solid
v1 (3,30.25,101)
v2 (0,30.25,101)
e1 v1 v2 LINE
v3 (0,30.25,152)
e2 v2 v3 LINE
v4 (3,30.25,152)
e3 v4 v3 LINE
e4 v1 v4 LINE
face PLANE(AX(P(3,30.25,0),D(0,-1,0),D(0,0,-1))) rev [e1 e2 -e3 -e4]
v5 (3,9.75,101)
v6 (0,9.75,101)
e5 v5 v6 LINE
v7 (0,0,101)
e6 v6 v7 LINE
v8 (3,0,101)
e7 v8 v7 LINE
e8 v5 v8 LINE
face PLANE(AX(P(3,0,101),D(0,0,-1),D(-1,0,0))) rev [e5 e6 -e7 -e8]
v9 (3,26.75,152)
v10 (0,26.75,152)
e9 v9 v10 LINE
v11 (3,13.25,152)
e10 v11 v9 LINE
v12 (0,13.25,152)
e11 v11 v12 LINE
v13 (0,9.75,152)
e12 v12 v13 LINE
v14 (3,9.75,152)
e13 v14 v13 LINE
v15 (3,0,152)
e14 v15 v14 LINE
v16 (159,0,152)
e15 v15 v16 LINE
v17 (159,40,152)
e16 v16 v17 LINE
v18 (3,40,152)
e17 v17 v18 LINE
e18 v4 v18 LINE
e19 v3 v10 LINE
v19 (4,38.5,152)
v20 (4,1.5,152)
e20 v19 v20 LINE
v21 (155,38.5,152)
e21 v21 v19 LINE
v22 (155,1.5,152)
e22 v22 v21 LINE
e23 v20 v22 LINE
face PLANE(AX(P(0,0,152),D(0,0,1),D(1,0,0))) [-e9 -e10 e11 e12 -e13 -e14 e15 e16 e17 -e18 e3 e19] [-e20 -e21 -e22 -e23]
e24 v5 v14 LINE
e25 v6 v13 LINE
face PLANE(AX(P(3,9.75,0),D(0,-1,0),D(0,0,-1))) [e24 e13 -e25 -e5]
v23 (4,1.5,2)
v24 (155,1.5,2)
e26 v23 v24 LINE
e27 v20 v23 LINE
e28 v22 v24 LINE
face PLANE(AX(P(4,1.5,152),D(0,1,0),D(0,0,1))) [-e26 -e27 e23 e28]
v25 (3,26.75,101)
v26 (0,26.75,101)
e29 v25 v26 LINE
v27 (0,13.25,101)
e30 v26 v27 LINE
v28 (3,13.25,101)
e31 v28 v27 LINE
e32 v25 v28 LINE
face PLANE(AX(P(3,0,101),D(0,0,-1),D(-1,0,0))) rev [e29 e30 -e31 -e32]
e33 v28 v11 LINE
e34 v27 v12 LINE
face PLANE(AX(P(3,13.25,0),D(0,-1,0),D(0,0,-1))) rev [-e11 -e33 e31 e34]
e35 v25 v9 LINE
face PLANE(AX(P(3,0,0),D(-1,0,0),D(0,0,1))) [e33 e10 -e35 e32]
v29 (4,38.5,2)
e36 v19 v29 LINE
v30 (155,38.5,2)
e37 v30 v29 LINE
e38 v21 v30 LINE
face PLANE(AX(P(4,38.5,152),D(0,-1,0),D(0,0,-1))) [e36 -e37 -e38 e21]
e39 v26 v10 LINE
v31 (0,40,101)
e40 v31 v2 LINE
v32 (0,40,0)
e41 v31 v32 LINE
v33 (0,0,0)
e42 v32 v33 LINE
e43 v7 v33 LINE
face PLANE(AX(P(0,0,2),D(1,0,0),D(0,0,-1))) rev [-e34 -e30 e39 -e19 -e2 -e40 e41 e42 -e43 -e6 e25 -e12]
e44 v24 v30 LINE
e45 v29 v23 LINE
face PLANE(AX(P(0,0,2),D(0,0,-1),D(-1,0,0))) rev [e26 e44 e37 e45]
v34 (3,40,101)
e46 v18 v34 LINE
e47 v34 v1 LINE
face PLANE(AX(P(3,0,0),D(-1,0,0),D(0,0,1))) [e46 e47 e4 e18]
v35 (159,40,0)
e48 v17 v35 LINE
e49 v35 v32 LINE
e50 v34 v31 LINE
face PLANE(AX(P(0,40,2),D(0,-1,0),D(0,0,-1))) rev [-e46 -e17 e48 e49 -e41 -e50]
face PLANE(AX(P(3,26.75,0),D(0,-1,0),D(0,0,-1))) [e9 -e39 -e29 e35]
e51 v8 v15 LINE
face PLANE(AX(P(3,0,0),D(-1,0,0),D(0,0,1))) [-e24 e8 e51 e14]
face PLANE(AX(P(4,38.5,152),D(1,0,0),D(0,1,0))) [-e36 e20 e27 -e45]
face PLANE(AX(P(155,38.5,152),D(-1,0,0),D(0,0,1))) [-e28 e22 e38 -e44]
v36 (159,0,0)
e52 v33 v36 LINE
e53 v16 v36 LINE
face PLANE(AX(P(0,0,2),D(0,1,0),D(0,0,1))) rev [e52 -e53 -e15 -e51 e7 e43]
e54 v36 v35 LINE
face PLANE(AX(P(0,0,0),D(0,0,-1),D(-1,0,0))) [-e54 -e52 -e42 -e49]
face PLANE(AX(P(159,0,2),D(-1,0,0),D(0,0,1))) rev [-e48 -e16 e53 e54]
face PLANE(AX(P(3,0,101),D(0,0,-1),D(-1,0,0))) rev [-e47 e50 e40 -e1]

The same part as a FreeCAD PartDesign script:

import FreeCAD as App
import Part
import Sketcher
Q = App.Units.Quantity

doc = App.newDocument("Part")
params = doc.addObject("Spreadsheet::Sheet", "Params")
for row, (alias, value) in enumerate([
    ("sketch1_width", "159 mm"),
    ("sketch1_height", "40 mm"),
    ("pad1_length", "2 mm"),
    ("sketch2_width", "159 mm"),
    ("sketch2_width2", "151 mm"),
    ("sketch2_height", "40 mm"),
    ("sketch2_height2", "37 mm"),
    ("pad2_length", "150 mm"),
    ("sketch3_height", "51 mm"),
    ("sketch3_width", "13.5 mm"),
    ("pocket1_length", "3 mm"),
], start=1):
    params.set(f"A{row}", alias)
    params.set(f"B{row}", "=" + value)
    params.setAlias(f"B{row}", alias)

body = doc.addObject("PartDesign::Body", "Body")

# Sketch on XY plane
sketch1 = body.newObject("Sketcher::SketchObject", "Sketch")
sketch1.AttachmentSupport = (doc.getObject("XY_Plane"), [""])
sketch1.MapMode = "FlatFace"
sketch1.addGeometry(Part.LineSegment(App.Vector(0, 40, 0), App.Vector(0, 0, 0)), False)
sketch1.addGeometry(Part.LineSegment(App.Vector(0, 0, 0), App.Vector(159, 0, 0)), False)
sketch1.addGeometry(Part.LineSegment(App.Vector(159, 0, 0), App.Vector(159, 40, 0)), False)
sketch1.addGeometry(Part.LineSegment(App.Vector(159, 40, 0), App.Vector(0, 40, 0)), False)
sketch1.addConstraint(Sketcher.Constraint("Coincident", 0, 2, 1, 1))
sketch1.addConstraint(Sketcher.Constraint("Coincident", 1, 2, 2, 1))
sketch1.addConstraint(Sketcher.Constraint("Coincident", 2, 2, 3, 1))
sketch1.addConstraint(Sketcher.Constraint("Coincident", 3, 2, 0, 1))
sketch1.addConstraint(Sketcher.Constraint("Vertical", 0))
sketch1.addConstraint(Sketcher.Constraint("Horizontal", 1))
sketch1.addConstraint(Sketcher.Constraint("Vertical", 2))
sketch1.addConstraint(Sketcher.Constraint("Horizontal", 3))
sketch1.addConstraint(Sketcher.Constraint("Coincident", 0, 2, -1, 1))
sketch1.addConstraint(Sketcher.Constraint("DistanceX", 1, 1, 1, 2, Q("159 mm")))
sketch1.addConstraint(Sketcher.Constraint("DistanceY", 0, 2, 0, 1, Q("40 mm")))
sketch1.setExpression("Constraints[9]", "Params.sketch1_width")
sketch1.setExpression("Constraints[10]", "Params.sketch1_height")
pad1 = body.newObject("PartDesign::Pad", "Pad")
pad1.Profile = sketch1
pad1.setExpression("Length", "Params.pad1_length")

# Sketch on XY plane
sketch2 = body.newObject("Sketcher::SketchObject", "Sketch001")
sketch2.AttachmentSupport = (doc.getObject("XY_Plane"), [""])
sketch2.MapMode = "FlatFace"
sketch2.AttachmentOffset = App.Placement(App.Vector(0, 0, 2), App.Rotation())
sketch2.addGeometry(Part.LineSegment(App.Vector(0, 40, 0), App.Vector(0, 0, 0)), False)
sketch2.addGeometry(Part.LineSegment(App.Vector(0, 0, 0), App.Vector(159, 0, 0)), False)
sketch2.addGeometry(Part.LineSegment(App.Vector(159, 0, 0), App.Vector(159, 40, 0)), False)
sketch2.addGeometry(Part.LineSegment(App.Vector(159, 40, 0), App.Vector(0, 40, 0)), False)
sketch2.addGeometry(Part.LineSegment(App.Vector(155, 2, 0), App.Vector(4, 2, 0)), False)
sketch2.addGeometry(Part.LineSegment(App.Vector(4, 2, 0), App.Vector(4, 38, 0)), False)
sketch2.addGeometry(Part.LineSegment(App.Vector(4, 38, 0), App.Vector(155, 38, 0)), False)
sketch2.addGeometry(Part.LineSegment(App.Vector(155, 38, 0), App.Vector(155, 2, 0)), False)
sketch2.addConstraint(Sketcher.Constraint("Coincident", 0, 2, 1, 1))
sketch2.addConstraint(Sketcher.Constraint("Coincident", 1, 2, 2, 1))
sketch2.addConstraint(Sketcher.Constraint("Coincident", 2, 2, 3, 1))
sketch2.addConstraint(Sketcher.Constraint("Coincident", 3, 2, 0, 1))
sketch2.addConstraint(Sketcher.Constraint("Coincident", 4, 2, 5, 1))
sketch2.addConstraint(Sketcher.Constraint("Coincident", 5, 2, 6, 1))
sketch2.addConstraint(Sketcher.Constraint("Coincident", 6, 2, 7, 1))
sketch2.addConstraint(Sketcher.Constraint("Coincident", 7, 2, 4, 1))
sketch2.addConstraint(Sketcher.Constraint("Vertical", 0))
sketch2.addConstraint(Sketcher.Constraint("Horizontal", 1))
sketch2.addConstraint(Sketcher.Constraint("Vertical", 2))
sketch2.addConstraint(Sketcher.Constraint("Horizontal", 3))
sketch2.addConstraint(Sketcher.Constraint("Horizontal", 4))
sketch2.addConstraint(Sketcher.Constraint("Vertical", 5))
sketch2.addConstraint(Sketcher.Constraint("Horizontal", 6))
sketch2.addConstraint(Sketcher.Constraint("Vertical", 7))
sketch2.addConstraint(Sketcher.Constraint("Coincident", 0, 2, -1, 1))
sketch2.addConstraint(Sketcher.Constraint("DistanceX", 1, 1, 1, 2, Q("159 mm")))
sketch2.addConstraint(Sketcher.Constraint("DistanceX", 4, 2, 4, 1, Q("151 mm")))
sketch2.addConstraint(Sketcher.Constraint("DistanceY", 0, 2, 0, 1, Q("40 mm")))
sketch2.addConstraint(Sketcher.Constraint("DistanceY", 5, 1, 5, 2, Q("37 mm")))
sketch2.addConstraint(Sketcher.Constraint("DistanceX", -1, 1, 4, 2, Q("4 mm")))
sketch2.addConstraint(Sketcher.Constraint("DistanceY", -1, 1, 4, 2, Q("1.5 mm")))
sketch2.setExpression("Constraints[17]", "Params.sketch2_width")
sketch2.setExpression("Constraints[18]", "Params.sketch2_width2")
sketch2.setExpression("Constraints[19]", "Params.sketch2_height")
sketch2.setExpression("Constraints[20]", "Params.sketch2_height2")
pad2 = body.newObject("PartDesign::Pad", "Pad001")
pad2.Profile = sketch2
pad2.setExpression("Length", "Params.pad2_length")

# Sketch on YZ plane
sketch3 = body.newObject("Sketcher::SketchObject", "Sketch002")
sketch3.AttachmentSupport = (doc.getObject("YZ_Plane"), [""])
sketch3.MapMode = "FlatFace"
sketch3.addGeometry(Part.LineSegment(App.Vector(40, 101, 0), App.Vector(30, 101, 0)), False)
sketch3.addGeometry(Part.LineSegment(App.Vector(30, 101, 0), App.Vector(30, 152, 0)), False)
sketch3.addGeometry(Part.LineSegment(App.Vector(30, 152, 0), App.Vector(40, 152, 0)), False)
sketch3.addGeometry(Part.LineSegment(App.Vector(40, 152, 0), App.Vector(40, 101, 0)), False)
sketch3.addGeometry(Part.LineSegment(App.Vector(27, 101, 0), App.Vector(13, 101, 0)), False)
sketch3.addGeometry(Part.LineSegment(App.Vector(13, 101, 0), App.Vector(13, 152, 0)), False)
sketch3.addGeometry(Part.LineSegment(App.Vector(13, 152, 0), App.Vector(27, 152, 0)), False)
sketch3.addGeometry(Part.LineSegment(App.Vector(27, 152, 0), App.Vector(27, 101, 0)), False)
sketch3.addGeometry(Part.LineSegment(App.Vector(10, 101, 0), App.Vector(0, 101, 0)), False)
sketch3.addGeometry(Part.LineSegment(App.Vector(0, 101, 0), App.Vector(0, 152, 0)), False)
sketch3.addGeometry(Part.LineSegment(App.Vector(0, 152, 0), App.Vector(10, 152, 0)), False)
sketch3.addGeometry(Part.LineSegment(App.Vector(10, 152, 0), App.Vector(10, 101, 0)), False)
sketch3.addConstraint(Sketcher.Constraint("Coincident", 0, 2, 1, 1))
sketch3.addConstraint(Sketcher.Constraint("Coincident", 1, 2, 2, 1))
sketch3.addConstraint(Sketcher.Constraint("Coincident", 2, 2, 3, 1))
sketch3.addConstraint(Sketcher.Constraint("Coincident", 3, 2, 0, 1))
sketch3.addConstraint(Sketcher.Constraint("Coincident", 4, 2, 5, 1))
sketch3.addConstraint(Sketcher.Constraint("Coincident", 5, 2, 6, 1))
sketch3.addConstraint(Sketcher.Constraint("Coincident", 6, 2, 7, 1))
sketch3.addConstraint(Sketcher.Constraint("Coincident", 7, 2, 4, 1))
sketch3.addConstraint(Sketcher.Constraint("Coincident", 8, 2, 9, 1))
sketch3.addConstraint(Sketcher.Constraint("Coincident", 9, 2, 10, 1))
sketch3.addConstraint(Sketcher.Constraint("Coincident", 10, 2, 11, 1))
sketch3.addConstraint(Sketcher.Constraint("Coincident", 11, 2, 8, 1))
sketch3.addConstraint(Sketcher.Constraint("Horizontal", 0))
sketch3.addConstraint(Sketcher.Constraint("Vertical", 1))
sketch3.addConstraint(Sketcher.Constraint("Horizontal", 2))
sketch3.addConstraint(Sketcher.Constraint("Vertical", 3))
sketch3.addConstraint(Sketcher.Constraint("Horizontal", 4))
sketch3.addConstraint(Sketcher.Constraint("Vertical", 5))
sketch3.addConstraint(Sketcher.Constraint("Horizontal", 6))
sketch3.addConstraint(Sketcher.Constraint("Vertical", 7))
sketch3.addConstraint(Sketcher.Constraint("Horizontal", 8))
sketch3.addConstraint(Sketcher.Constraint("Vertical", 9))
sketch3.addConstraint(Sketcher.Constraint("Horizontal", 10))
sketch3.addConstraint(Sketcher.Constraint("Vertical", 11))
sketch3.addConstraint(Sketcher.Constraint("PointOnObject", 8, 2, -2))
sketch3.addConstraint(Sketcher.Constraint("Horizontal", 3, 2, 4, 2))
sketch3.addConstraint(Sketcher.Constraint("Horizontal", 2, 2, 5, 2))
sketch3.addConstraint(Sketcher.Constraint("Horizontal", 7, 2, 8, 2))
sketch3.addConstraint(Sketcher.Constraint("Horizontal", 6, 2, 9, 2))
sketch3.addConstraint(Sketcher.Constraint("Equal", 2, 8))
sketch3.addConstraint(Sketcher.Constraint("DistanceY", 1, 1, 1, 2, Q("51 mm")))
sketch3.addConstraint(Sketcher.Constraint("DistanceX", 4, 2, 4, 1, Q("13.5 mm")))
sketch3.addConstraint(Sketcher.Constraint("DistanceY", -1, 1, 0, 2, Q("101 mm")))
sketch3.addConstraint(Sketcher.Constraint("DistanceX", -1, 1, 2, 2, Q("40 mm")))
sketch3.addConstraint(Sketcher.Constraint("DistanceX", 4, 2, 0, 2, Q("17 mm")))
sketch3.addConstraint(Sketcher.Constraint("DistanceX", 10, 2, 6, 2, Q("17 mm")))
sketch3.setExpression("Constraints[30]", "Params.sketch3_height")
sketch3.setExpression("Constraints[31]", "Params.sketch3_width")
pocket1 = body.newObject("PartDesign::Pocket", "Pocket")
pocket1.Profile = sketch3
pocket1.setExpression("Length", "Params.pocket1_length")
pocket1.Reversed = True

doc.recompute()
